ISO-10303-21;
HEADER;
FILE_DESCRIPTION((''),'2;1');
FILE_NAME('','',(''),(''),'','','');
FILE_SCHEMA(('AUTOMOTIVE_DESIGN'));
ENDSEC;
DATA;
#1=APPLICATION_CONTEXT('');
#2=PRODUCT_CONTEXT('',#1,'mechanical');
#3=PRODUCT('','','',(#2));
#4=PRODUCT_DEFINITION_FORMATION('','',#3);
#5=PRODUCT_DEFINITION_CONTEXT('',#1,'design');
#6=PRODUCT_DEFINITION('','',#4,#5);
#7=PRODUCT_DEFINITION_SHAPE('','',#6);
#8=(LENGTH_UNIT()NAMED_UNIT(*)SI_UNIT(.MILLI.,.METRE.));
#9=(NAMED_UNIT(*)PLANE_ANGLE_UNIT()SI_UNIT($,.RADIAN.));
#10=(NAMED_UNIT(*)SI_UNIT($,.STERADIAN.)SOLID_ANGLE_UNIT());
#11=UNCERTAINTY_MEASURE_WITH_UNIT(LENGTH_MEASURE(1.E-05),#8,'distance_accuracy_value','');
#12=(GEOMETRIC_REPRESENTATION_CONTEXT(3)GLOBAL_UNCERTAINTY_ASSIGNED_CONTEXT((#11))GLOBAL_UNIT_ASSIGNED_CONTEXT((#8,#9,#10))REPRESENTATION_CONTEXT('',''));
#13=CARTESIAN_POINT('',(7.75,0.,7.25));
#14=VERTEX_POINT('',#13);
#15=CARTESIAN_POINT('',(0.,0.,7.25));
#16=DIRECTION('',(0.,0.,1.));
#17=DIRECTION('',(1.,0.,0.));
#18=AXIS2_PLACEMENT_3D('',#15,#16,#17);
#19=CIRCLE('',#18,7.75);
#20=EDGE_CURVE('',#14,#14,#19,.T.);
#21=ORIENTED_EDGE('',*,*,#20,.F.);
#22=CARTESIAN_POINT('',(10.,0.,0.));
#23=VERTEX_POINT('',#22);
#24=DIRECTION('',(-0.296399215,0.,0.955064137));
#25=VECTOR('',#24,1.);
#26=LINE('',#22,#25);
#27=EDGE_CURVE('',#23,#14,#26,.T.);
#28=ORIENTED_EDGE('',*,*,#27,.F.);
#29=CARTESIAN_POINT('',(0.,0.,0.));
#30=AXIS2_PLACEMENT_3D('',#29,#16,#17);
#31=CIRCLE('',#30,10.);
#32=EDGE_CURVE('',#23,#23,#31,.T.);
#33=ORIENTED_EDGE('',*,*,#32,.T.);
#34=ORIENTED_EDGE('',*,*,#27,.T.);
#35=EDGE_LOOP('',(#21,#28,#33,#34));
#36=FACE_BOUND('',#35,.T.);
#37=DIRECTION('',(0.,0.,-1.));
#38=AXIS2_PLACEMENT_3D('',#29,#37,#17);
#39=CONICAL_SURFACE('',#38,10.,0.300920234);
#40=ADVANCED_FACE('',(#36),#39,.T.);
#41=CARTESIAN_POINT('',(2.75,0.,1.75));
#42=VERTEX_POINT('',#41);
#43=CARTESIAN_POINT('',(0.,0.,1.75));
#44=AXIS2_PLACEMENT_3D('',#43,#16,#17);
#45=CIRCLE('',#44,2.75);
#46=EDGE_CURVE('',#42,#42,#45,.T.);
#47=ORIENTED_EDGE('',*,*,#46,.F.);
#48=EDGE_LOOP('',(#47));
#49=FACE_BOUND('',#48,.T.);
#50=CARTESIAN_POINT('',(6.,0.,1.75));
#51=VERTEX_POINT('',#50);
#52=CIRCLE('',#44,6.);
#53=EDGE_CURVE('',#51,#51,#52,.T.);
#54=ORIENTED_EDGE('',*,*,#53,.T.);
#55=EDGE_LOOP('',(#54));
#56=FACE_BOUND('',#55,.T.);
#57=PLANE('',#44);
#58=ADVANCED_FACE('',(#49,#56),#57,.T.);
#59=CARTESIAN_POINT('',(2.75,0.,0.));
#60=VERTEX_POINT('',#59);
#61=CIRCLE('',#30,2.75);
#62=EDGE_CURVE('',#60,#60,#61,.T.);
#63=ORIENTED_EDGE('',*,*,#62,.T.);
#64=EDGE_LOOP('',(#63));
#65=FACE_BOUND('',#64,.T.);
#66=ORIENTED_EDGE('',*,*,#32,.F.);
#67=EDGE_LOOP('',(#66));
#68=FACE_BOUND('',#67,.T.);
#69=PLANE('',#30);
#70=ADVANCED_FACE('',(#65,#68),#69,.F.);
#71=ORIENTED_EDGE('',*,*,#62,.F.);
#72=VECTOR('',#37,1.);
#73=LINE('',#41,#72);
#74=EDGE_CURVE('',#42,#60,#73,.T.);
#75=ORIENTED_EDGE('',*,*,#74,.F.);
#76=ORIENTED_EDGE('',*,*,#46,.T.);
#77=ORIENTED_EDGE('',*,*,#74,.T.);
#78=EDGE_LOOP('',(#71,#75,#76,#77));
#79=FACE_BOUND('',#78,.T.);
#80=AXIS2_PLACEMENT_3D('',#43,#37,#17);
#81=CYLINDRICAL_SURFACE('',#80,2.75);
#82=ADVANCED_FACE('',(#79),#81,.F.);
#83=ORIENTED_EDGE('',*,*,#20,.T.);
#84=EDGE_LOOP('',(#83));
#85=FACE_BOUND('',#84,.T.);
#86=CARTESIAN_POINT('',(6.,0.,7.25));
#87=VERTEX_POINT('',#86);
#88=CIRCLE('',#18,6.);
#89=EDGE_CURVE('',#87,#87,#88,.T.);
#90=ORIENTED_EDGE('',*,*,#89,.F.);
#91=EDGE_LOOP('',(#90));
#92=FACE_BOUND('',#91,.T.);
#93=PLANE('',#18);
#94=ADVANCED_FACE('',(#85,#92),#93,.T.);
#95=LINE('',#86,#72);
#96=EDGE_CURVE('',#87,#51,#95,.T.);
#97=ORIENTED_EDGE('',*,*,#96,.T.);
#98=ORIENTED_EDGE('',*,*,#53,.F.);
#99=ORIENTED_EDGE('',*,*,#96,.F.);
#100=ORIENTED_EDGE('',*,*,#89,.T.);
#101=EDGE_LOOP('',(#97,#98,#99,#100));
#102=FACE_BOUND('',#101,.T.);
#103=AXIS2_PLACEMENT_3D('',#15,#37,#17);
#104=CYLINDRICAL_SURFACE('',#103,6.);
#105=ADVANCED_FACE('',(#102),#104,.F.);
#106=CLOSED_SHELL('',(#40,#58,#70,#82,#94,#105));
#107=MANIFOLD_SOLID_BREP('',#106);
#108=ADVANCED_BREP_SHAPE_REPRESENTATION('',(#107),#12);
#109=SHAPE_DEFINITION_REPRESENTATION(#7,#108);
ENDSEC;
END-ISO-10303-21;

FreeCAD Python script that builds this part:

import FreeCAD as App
import Part
import Sketcher

V = App.Vector

doc = App.newDocument("Part")
body = doc.addObject("PartDesign::Body", "Body")

# Sketch on XZ plane
sketch1 = body.newObject("Sketcher::SketchObject", "Sketch")
sketch1.AttachmentSupport = (doc.getObject("XZ_Plane"), [""])
sketch1.MapMode = "FlatFace"
sketch1.addGeometry(Part.LineSegment(V(6, 7.2, 0), V(6, 1.8, 0)), False)
sketch1.addGeometry(Part.LineSegment(V(6, 1.8, 0), V(2.8, 1.8, 0)), False)
sketch1.addGeometry(Part.LineSegment(V(2.8, 1.8, 0), V(2.8, 0, 0)), False)
sketch1.addGeometry(Part.LineSegment(V(2.8, 0, 0), V(10, 0, 0)), False)
sketch1.addGeometry(Part.LineSegment(V(10, 0, 0), V(7.8, 7.2, 0)), False)
sketch1.addGeometry(Part.LineSegment(V(7.8, 7.2, 0), V(6, 7.2, 0)), False)
sketch1.addConstraint(Sketcher.Constraint("Coincident", 0, 2, 1, 1))
sketch1.addConstraint(Sketcher.Constraint("Coincident", 1, 2, 2, 1))
sketch1.addConstraint(Sketcher.Constraint("Coincident", 2, 2, 3, 1))
sketch1.addConstraint(Sketcher.Constraint("Coincident", 3, 2, 4, 1))
sketch1.addConstraint(Sketcher.Constraint("Coincident", 4, 2, 5, 1))
sketch1.addConstraint(Sketcher.Constraint("Coincident", 5, 2, 0, 1))
sketch1.addConstraint(Sketcher.Constraint("Vertical", 0))
sketch1.addConstraint(Sketcher.Constraint("Horizontal", 1))
sketch1.addConstraint(Sketcher.Constraint("Vertical", 2))
sketch1.addConstraint(Sketcher.Constraint("Horizontal", 3))
sketch1.addConstraint(Sketcher.Constraint("Horizontal", 5))
sketch1.addConstraint(Sketcher.Constraint("PointOnObject", 2, 2, -1))
sketch1.addConstraint(Sketcher.Constraint("Equal", 5, 2))
sketch1.addConstraint(Sketcher.Constraint("DistanceY", 0, 2, 0, 1, 5.5))
sketch1.addConstraint(Sketcher.Constraint("DistanceX", -1, 1, 0, 2, 6.0))
sketch1.addConstraint(Sketcher.Constraint("DistanceX", -1, 1, 3, 2, 10.0))
sketch1.addConstraint(Sketcher.Constraint("DistanceX", 1, 2, 4, 2, 5.0))
sketch1.addConstraint(Sketcher.Constraint("DistanceX", 1, 2, 1, 1, 3.25))
revolution = body.newObject("PartDesign::Revolution", "Revolution")
revolution.Profile = sketch1
revolution.ReferenceAxis = (sketch1, ["V_Axis"])
revolution.Angle = 360

doc.recompute()
